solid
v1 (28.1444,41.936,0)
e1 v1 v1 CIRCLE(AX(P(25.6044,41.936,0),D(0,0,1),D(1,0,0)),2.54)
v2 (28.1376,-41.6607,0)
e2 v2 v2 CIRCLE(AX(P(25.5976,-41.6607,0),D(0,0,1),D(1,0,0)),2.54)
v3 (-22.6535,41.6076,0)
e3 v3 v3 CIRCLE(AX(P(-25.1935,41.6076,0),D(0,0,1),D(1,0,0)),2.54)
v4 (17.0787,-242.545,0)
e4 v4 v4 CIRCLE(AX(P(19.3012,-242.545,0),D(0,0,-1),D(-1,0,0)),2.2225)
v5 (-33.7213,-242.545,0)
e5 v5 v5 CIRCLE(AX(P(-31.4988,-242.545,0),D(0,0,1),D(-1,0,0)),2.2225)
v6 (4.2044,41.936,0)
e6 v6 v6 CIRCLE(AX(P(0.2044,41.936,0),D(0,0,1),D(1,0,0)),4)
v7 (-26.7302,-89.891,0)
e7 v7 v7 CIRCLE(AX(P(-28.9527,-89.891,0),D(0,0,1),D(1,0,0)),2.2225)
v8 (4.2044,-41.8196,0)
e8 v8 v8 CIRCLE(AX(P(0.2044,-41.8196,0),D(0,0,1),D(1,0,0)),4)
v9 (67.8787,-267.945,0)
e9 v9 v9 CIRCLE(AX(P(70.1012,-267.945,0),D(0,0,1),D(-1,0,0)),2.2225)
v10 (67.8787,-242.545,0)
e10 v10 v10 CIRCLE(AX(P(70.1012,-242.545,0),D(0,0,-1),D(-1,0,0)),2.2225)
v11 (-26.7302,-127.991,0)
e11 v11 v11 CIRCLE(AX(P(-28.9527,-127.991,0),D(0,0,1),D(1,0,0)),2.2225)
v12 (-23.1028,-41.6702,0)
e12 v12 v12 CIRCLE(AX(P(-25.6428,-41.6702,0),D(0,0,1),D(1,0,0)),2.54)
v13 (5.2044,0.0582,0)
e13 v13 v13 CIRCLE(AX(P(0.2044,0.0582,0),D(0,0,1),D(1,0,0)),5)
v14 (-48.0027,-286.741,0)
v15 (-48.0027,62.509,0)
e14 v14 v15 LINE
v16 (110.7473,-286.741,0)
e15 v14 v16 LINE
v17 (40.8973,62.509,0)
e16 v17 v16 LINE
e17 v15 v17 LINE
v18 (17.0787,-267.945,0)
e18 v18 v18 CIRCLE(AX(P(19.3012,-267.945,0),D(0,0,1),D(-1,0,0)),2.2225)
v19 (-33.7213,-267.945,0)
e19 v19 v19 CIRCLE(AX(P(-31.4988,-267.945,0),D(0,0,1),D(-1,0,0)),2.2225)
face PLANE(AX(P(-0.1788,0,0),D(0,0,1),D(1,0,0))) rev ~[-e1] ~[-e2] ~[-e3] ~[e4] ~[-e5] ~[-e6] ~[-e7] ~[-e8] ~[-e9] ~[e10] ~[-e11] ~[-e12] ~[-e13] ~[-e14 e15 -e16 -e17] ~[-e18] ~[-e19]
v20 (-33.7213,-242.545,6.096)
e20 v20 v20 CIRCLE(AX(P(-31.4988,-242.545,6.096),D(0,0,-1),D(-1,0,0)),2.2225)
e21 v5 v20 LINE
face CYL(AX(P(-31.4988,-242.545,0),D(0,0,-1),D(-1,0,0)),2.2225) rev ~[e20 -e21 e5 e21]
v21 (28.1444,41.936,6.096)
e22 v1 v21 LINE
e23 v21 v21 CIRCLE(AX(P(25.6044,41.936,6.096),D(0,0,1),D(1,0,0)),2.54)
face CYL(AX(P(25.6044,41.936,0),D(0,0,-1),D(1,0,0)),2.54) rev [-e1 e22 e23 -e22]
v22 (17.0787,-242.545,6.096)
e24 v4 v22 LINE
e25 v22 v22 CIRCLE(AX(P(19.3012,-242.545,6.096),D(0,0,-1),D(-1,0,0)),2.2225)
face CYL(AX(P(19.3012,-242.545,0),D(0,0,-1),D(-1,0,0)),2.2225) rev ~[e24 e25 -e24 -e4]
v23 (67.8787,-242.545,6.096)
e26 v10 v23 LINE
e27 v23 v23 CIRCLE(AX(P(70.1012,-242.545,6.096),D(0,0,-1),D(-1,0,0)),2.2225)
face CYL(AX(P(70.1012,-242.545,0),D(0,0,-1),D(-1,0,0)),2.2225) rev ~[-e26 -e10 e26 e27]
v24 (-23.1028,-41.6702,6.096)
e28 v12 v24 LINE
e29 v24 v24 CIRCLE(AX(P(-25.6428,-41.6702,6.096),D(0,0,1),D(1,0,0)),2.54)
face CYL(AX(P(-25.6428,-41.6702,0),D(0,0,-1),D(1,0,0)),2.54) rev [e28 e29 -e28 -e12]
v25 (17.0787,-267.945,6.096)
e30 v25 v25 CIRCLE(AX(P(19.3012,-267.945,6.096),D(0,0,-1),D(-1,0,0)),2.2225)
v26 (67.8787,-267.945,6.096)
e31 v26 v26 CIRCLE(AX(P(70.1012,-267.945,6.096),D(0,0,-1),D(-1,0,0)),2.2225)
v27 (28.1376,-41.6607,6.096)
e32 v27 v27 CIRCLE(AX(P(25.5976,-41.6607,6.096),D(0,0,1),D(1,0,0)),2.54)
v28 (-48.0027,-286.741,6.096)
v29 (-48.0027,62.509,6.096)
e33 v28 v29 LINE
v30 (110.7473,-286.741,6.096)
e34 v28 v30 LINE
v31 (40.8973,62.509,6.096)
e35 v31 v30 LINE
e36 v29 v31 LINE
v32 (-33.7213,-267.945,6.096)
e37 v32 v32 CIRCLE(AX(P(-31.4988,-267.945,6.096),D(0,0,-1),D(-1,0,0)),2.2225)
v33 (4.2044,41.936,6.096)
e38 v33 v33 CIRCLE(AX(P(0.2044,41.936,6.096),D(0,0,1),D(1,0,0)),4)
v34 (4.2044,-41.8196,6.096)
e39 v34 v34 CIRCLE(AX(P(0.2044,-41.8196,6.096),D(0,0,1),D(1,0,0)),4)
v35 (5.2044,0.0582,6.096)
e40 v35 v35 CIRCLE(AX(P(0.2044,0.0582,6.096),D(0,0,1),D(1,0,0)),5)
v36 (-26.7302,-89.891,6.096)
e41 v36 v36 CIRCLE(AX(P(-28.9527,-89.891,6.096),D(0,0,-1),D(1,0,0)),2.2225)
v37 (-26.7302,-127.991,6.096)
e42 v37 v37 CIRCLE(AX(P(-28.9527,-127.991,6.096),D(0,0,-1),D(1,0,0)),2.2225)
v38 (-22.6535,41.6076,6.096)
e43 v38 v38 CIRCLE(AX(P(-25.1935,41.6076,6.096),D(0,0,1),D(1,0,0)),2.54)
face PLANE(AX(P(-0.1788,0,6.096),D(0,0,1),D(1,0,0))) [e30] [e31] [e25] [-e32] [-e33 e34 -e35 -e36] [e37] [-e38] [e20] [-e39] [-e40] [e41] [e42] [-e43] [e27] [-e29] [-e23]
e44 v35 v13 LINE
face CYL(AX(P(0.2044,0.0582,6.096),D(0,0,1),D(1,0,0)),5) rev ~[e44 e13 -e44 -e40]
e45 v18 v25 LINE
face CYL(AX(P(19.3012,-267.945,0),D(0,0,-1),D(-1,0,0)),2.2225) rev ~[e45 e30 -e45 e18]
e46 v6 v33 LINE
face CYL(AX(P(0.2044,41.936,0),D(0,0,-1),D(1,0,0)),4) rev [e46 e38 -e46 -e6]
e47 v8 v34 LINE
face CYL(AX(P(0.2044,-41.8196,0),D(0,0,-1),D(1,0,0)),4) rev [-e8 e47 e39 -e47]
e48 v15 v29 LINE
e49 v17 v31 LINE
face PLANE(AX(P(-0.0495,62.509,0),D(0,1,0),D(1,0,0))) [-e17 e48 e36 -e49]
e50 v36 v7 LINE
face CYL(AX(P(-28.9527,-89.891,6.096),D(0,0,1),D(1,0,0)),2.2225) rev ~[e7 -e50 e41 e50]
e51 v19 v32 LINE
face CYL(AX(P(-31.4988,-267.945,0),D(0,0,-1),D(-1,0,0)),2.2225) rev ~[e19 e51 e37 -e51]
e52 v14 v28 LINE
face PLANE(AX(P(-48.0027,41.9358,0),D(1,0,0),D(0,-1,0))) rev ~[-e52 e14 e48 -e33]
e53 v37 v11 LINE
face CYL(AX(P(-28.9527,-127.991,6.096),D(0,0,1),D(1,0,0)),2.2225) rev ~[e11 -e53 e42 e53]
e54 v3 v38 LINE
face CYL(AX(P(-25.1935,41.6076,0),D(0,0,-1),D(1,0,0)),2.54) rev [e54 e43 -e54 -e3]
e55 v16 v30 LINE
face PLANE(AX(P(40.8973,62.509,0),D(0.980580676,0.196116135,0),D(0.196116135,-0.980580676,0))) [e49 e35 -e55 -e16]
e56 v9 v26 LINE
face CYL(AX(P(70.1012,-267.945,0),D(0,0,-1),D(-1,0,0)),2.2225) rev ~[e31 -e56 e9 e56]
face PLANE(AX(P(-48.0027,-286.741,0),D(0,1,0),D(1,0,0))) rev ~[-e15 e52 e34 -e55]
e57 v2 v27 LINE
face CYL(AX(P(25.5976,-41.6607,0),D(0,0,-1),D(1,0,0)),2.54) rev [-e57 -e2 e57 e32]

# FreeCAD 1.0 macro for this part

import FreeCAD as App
import Part
import Sketcher
Q = App.Units.Quantity

doc = App.newDocument("Part")
body = doc.addObject("PartDesign::Body", "Body")

# Sketch on XY plane
sketch1 = body.newObject("Sketcher::SketchObject", "Sketch")
sketch1.AttachmentSupport = (doc.getObject("XY_Plane"), [""])
sketch1.MapMode = "FlatFace"
sketch1.addGeometry([
    Part.LineSegment(App.Vector(-48, -286.7, 0), App.Vector(110.7, -286.7, 0)),  # 0
    Part.LineSegment(App.Vector(110.7, -286.7, 0), App.Vector(40.9, 62.5, 0)),  # 1
    Part.LineSegment(App.Vector(40.9, 62.5, 0), App.Vector(-48, 62.5, 0)),  # 2
    Part.LineSegment(App.Vector(-48, 62.5, 0), App.Vector(-48, -286.7, 0)),  # 3
    Part.Circle(App.Vector(-25.6, -41.7, 0), App.Vector(0, 0, 1), 2.5),  # 4
    Part.Circle(App.Vector(0.2, -41.8, 0), App.Vector(0, 0, 1), 4),  # 5
    Part.Circle(App.Vector(25.6, -41.7, 0), App.Vector(0, 0, 1), 2.5),  # 6
    Part.Circle(App.Vector(25.6, 41.9, 0), App.Vector(0, 0, 1), 2.5),  # 7
    Part.Circle(App.Vector(-25.2, 41.6, 0), App.Vector(0, 0, 1), 2.5),  # 8
    Part.Circle(App.Vector(0.2, 41.9, 0), App.Vector(0, 0, 1), 4),  # 9
], False)
sketch1.addConstraint([
    Sketcher.Constraint("Coincident", 0, 2, 1, 1),
    Sketcher.Constraint("Coincident", 1, 2, 2, 1),
    Sketcher.Constraint("Coincident", 2, 2, 3, 1),
    Sketcher.Constraint("Coincident", 3, 2, 0, 1),
    Sketcher.Constraint("Horizontal", 0),
    Sketcher.Constraint("Horizontal", 2),
    Sketcher.Constraint("Vertical", 3),
    Sketcher.Constraint("Equal", 4, 6),
    Sketcher.Constraint("Equal", 6, 7),
    Sketcher.Constraint("Equal", 7, 8),
    Sketcher.Constraint("Equal", 5, 9),
    Sketcher.Constraint("Horizontal", 7, 3, 9, 3),
    Sketcher.Constraint("Vertical", 5, 3, 9, 3),
    Sketcher.Constraint("DistanceX", 2, 2, 2, 1, Q("3.5 in")),
    Sketcher.Constraint("Diameter", 4, Q("0.2 in")),
    Sketcher.Constraint("DistanceY", 3, 2, 3, 1, Q("13.75 in")),
    Sketcher.Constraint("DistanceX", 5, 3, 7, 3, Q("1 in")),
    Sketcher.Constraint("DistanceX", 0, 1, 0, 2, Q("6.25 in")),
    Sketcher.Constraint("Diameter", 5, 8.0),
    Sketcher.Constraint("DistanceX", 8, 3, 1, 2, Q("2.602 in")),
    Sketcher.Constraint("DistanceY", -1, 1, 8, 3, Q("1.6381 in")),
    Sketcher.Constraint("DistanceX", 4, 3, 5, 3, Q("1.0176 in")),
    Sketcher.Constraint("DistanceY", 6, 3, 7, 3, Q("3.2912 in")),
    Sketcher.Constraint("DistanceX", 4, 3, 8, 3, Q("0.0177 in")),
    Sketcher.Constraint("DistanceY", 8, 3, 1, 2, Q("0.8229 in")),
    Sketcher.Constraint("DistanceX", 4, 3, -1, 1, 25.6428),
    Sketcher.Constraint("DistanceY", 4, 3, -1, 1, 41.6702),
    Sketcher.Constraint("DistanceY", 5, 3, -1, 1, 41.8196),
    Sketcher.Constraint("DistanceX", -1, 1, 6, 3, 25.5976),
    Sketcher.Constraint("DistanceY", 6, 3, -1, 1, 41.6607),
])
pad1 = body.newObject("PartDesign::Pad", "Pad")
pad1.Profile = sketch1
pad1.Length = Q("0.24 in")

# Sketch on XY plane
sketch2 = body.newObject("Sketcher::SketchObject", "Sketch001")
sketch2.AttachmentSupport = (doc.getObject("XY_Plane"), [""])
sketch2.MapMode = "FlatFace"
sketch2.AttachmentOffset = App.Placement(App.Vector(0, 0, 0.24 * 25.4), App.Rotation())
sketch2.addGeometry(Part.Circle(App.Vector(0, 0, 0), App.Vector(0, 0, 1), 5), False)
sketch2.addConstraint([
    Sketcher.Constraint("Diameter", 0, Q("0.3937 in")),
    Sketcher.Constraint("DistanceY", -1, 1, 0, 3, Q("0.0023 in")),
    Sketcher.Constraint("DistanceX", -1, 1, 0, 3, 0.2044),
])
pocket1 = body.newObject("PartDesign::Pocket", "Pocket")
pocket1.Profile = sketch2
pocket1.Length = Q("1 in")

# Sketch on XY plane
sketch3 = body.newObject("Sketcher::SketchObject", "Sketch002")
sketch3.AttachmentSupport = (doc.getObject("XY_Plane"), [""])
sketch3.MapMode = "FlatFace"
sketch3.addGeometry([
    Part.Circle(App.Vector(-31.5, -242.5, 0), App.Vector(0, 0, 1), 2.2),  # 0
    Part.Circle(App.Vector(-31.5, -267.9, 0), App.Vector(0, 0, 1), 2.2),  # 1
    Part.Circle(App.Vector(19.3, -267.9, 0), App.Vector(0, 0, 1), 2.2),  # 2
    Part.Circle(App.Vector(70.1, -267.9, 0), App.Vector(0, 0, 1), 2.2),  # 3
    Part.Circle(App.Vector(19.3, -242.5, 0), App.Vector(0, 0, 1), 2.2),  # 4
    Part.Circle(App.Vector(70.1, -242.5, 0), App.Vector(0, 0, 1), 2.2),  # 5
], False)
sketch3.addConstraint([
    Sketcher.Constraint("Equal", 0, 1),
    Sketcher.Constraint("Equal", 1, 2),
    Sketcher.Constraint("Equal", 2, 3),
    Sketcher.Constraint("Equal", 3, 4),
    Sketcher.Constraint("Equal", 4, 5),
    Sketcher.Constraint("Horizontal", 1, 3, 2, 3),
    Sketcher.Constraint("Horizontal", 2, 3, 3, 3),
    Sketcher.Constraint("Horizontal", 0, 3, 4, 3),
    Sketcher.Constraint("Horizontal", 4, 3, 5, 3),
    Sketcher.Constraint("Vertical", 0, 3, 1, 3),
    Sketcher.Constraint("Vertical", 2, 3, 4, 3),
    Sketcher.Constraint("Vertical", 3, 3, 5, 3),
    Sketcher.Constraint("Diameter", 0, Q("0.175 in")),
    Sketcher.Constraint("DistanceY", 1, 3, 0, 3, Q("1 in")),
    Sketcher.Constraint("DistanceX", 1, 3, 2, 3, Q("2 in")),
    Sketcher.Constraint("DistanceX", 2, 3, 3, 3, Q("2 in")),
    Sketcher.Constraint("DistanceX", 0, 3, -1, 1, Q("1.2401 in")),
    Sketcher.Constraint("DistanceY", 0, 3, -1, 1, 242.545),
])
pocket2 = body.newObject("PartDesign::Pocket", "Pocket001")
pocket2.Profile = sketch3
pocket2.Length = Q("1 in")
pocket2.Reversed = True

# Sketch on XY plane
sketch4 = body.newObject("Sketcher::SketchObject", "Sketch003")
sketch4.AttachmentSupport = (doc.getObject("XY_Plane"), [""])
sketch4.MapMode = "FlatFace"
sketch4.AttachmentOffset = App.Placement(App.Vector(0, 0, 0.24 * 25.4), App.Rotation())
sketch4.addGeometry([
    Part.Circle(App.Vector(-29, -89.9, 0), App.Vector(0, 0, 1), 2.2),
    Part.Circle(App.Vector(-29, -128, 0), App.Vector(0, 0, 1), 2.2),
], False)
sketch4.addConstraint([
    Sketcher.Constraint("Equal", 0, 1),
    Sketcher.Constraint("Vertical", 0, 3, 1, 3),
    Sketcher.Constraint("Diameter", 0, Q("0.175 in")),
    Sketcher.Constraint("DistanceY", 1, 3, 0, 3, Q("1.5 in")),
    Sketcher.Constraint("DistanceX", 0, 3, -1, 1, 28.9527),
    Sketcher.Constraint("DistanceY", 0, 3, -1, 1, 89.891),
])
pocket3 = body.newObject("PartDesign::Pocket", "Pocket002")
pocket3.Profile = sketch4
pocket3.Length = Q("1 in")

doc.recompute()
